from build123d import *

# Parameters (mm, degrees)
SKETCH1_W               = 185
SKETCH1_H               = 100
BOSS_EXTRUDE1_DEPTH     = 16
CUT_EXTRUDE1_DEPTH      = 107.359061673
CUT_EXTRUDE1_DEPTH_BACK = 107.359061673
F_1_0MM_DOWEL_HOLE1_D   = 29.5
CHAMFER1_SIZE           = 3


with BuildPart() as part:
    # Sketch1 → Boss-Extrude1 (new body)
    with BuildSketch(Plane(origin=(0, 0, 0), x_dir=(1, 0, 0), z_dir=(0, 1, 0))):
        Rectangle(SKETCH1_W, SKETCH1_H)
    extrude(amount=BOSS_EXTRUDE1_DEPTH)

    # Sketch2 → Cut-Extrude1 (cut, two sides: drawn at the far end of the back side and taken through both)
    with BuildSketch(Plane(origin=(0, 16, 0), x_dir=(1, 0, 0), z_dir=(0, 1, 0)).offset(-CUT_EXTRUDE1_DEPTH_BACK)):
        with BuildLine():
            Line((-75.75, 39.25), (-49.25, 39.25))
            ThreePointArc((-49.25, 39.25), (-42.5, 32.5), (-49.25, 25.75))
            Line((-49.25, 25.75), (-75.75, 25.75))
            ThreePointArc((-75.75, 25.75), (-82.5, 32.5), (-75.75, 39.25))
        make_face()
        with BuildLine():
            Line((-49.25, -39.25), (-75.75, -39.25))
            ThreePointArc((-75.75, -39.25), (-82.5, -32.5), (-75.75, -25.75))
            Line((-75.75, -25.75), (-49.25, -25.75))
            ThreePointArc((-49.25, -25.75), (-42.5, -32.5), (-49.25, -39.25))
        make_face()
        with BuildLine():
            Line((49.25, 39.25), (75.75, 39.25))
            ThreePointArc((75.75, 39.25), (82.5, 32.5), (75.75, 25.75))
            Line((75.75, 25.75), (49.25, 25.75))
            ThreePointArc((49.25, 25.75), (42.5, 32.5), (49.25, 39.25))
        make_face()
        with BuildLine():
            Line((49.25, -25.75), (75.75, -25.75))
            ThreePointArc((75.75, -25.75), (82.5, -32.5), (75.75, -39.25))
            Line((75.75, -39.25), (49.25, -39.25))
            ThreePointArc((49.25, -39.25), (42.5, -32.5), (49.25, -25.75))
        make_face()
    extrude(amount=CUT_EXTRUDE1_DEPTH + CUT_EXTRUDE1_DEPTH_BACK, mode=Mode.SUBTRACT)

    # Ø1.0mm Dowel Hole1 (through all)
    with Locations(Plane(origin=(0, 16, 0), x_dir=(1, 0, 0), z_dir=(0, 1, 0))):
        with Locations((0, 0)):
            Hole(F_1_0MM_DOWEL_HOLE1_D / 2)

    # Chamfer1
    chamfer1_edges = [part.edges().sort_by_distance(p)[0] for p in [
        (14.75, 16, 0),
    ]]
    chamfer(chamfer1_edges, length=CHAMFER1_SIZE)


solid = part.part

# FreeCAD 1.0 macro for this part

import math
import FreeCAD as App
import Part
import Sketcher


def edges_at(feature, points):
    """Names of the edges that pass closest to the given points."""
    edges = feature.Shape.Edges
    near = lambda p: min(range(len(edges)), key=lambda i: edges[i].distToShape(Part.Vertex(*p))[0])
    return sorted({f"Edge{near(p) + 1}" for p in points})


def add_polygon(sketch, points):
    """Adds a closed chain of lines whose ends are joined by coincident constraints."""
    first, n = sketch.GeometryCount, len(points)
    for a, b in zip(points, points[1:] + points[:1]):
        sketch.addGeometry(Part.LineSegment(App.Vector(*a, 0), App.Vector(*b, 0)), False)
    for i in range(n):
        sketch.addConstraint(Sketcher.Constraint("Coincident", first + i, 2, first + (i + 1) % n, 1))

doc = App.newDocument("Part")
params = doc.addObject("Spreadsheet::Sheet", "Params")
for row, (alias, value) in enumerate([
    ("sketch1_width", "185 mm"),
    ("sketch1_height", "100 mm"),
    ("pad1_length", "16 mm"),
    ("sketch2_radius", "6.75 mm"),
    ("sketch2_width", "26.5 mm"),
    ("sketch3_diameter", "29.5 mm"),
    ("hole_diameter", "29.5 mm"),
    ("chamfer_size", "3 mm"),
], start=1):
    params.set(f"A{row}", alias)
    params.set(f"B{row}", "=" + value)
    params.setAlias(f"B{row}", alias)

body = doc.addObject("PartDesign::Body", "Body")

# Sketch on XZ plane
sketch1 = body.newObject("Sketcher::SketchObject", "Sketch")
sketch1.AttachmentSupport = (doc.getObject("XZ_Plane"), [""])
sketch1.MapMode = "FlatFace"
add_polygon(sketch1, [(-92, -50), (-92, 50), (92, 50), (92, -50)])  # lines 0-3
sketch1.addConstraint(Sketcher.Constraint("Vertical", 0))
sketch1.addConstraint(Sketcher.Constraint("Horizontal", 1))
sketch1.addConstraint(Sketcher.Constraint("Vertical", 2))
sketch1.addConstraint(Sketcher.Constraint("Horizontal", 3))
sketch1.addConstraint(Sketcher.Constraint("Symmetric", 0, 2, 2, 2, -1, 1))
sketch1.addConstraint(Sketcher.Constraint("DistanceX", 1, 1, 1, 2, 185.0))
sketch1.addConstraint(Sketcher.Constraint("DistanceY", 0, 1, 0, 2, 100.0))
sketch1.setExpression("Constraints[9]", "Params.sketch1_width")
sketch1.setExpression("Constraints[10]", "Params.sketch1_height")
pad1 = body.newObject("PartDesign::Pad", "Pad")
pad1.Profile = sketch1
pad1.setExpression("Length", "Params.pad1_length")
pad1.Reversed = True

# Sketch on XZ plane
sketch2 = body.newObject("Sketcher::SketchObject", "Sketch001")
sketch2.AttachmentSupport = (doc.getObject("XZ_Plane"), [""])
sketch2.MapMode = "FlatFace"
sketch2.AttachmentOffset = App.Placement(App.Vector(0, 0, -16), App.Rotation())
sketch2.addGeometry(Part.LineSegment(App.Vector(-49, -39, 0), App.Vector(-76, -39, 0)), False)
sketch2.addGeometry(Part.ArcOfCircle(Part.Circle(App.Vector(-76, -32, 0), App.Vector(0, 0, 1), 7), math.radians(90), math.radians(270)), False)
sketch2.addGeometry(Part.LineSegment(App.Vector(-76, -26, 0), App.Vector(-49, -26, 0)), False)
sketch2.addGeometry(Part.ArcOfCircle(Part.Circle(App.Vector(-49, -32, 0), App.Vector(0, 0, 1), 7), math.radians(-90), math.radians(90)), False)
sketch2.addGeometry(Part.LineSegment(App.Vector(-76, 39, 0), App.Vector(-49, 39, 0)), False)
sketch2.addGeometry(Part.ArcOfCircle(Part.Circle(App.Vector(-49, 32, 0), App.Vector(0, 0, 1), 7), math.radians(-90), math.radians(90)), False)
sketch2.addGeometry(Part.LineSegment(App.Vector(-49, 26, 0), App.Vector(-76, 26, 0)), False)
sketch2.addGeometry(Part.ArcOfCircle(Part.Circle(App.Vector(-76, 32, 0), App.Vector(0, 0, 1), 7), math.radians(90), math.radians(270)), False)
sketch2.addGeometry(Part.LineSegment(App.Vector(76, -39, 0), App.Vector(49, -39, 0)), False)
sketch2.addGeometry(Part.ArcOfCircle(Part.Circle(App.Vector(49, -32, 0), App.Vector(0, 0, 1), 7), math.radians(90), math.radians(270)), False)
sketch2.addGeometry(Part.LineSegment(App.Vector(49, -26, 0), App.Vector(76, -26, 0)), False)
sketch2.addGeometry(Part.ArcOfCircle(Part.Circle(App.Vector(76, -32, 0), App.Vector(0, 0, 1), 7), math.radians(-90), math.radians(90)), False)
sketch2.addGeometry(Part.LineSegment(App.Vector(76, 26, 0), App.Vector(49, 26, 0)), False)
sketch2.addGeometry(Part.ArcOfCircle(Part.Circle(App.Vector(49, 32, 0), App.Vector(0, 0, 1), 7), math.radians(90), math.radians(270)), False)
sketch2.addGeometry(Part.LineSegment(App.Vector(49, 39, 0), App.Vector(76, 39, 0)), False)
sketch2.addGeometry(Part.ArcOfCircle(Part.Circle(App.Vector(76, 32, 0), App.Vector(0, 0, 1), 7), math.radians(-90), math.radians(90)), False)
sketch2.addConstraint(Sketcher.Constraint("Tangent", 0, 2, 1, 2))
sketch2.addConstraint(Sketcher.Constraint("Tangent", 1, 1, 2, 1))
sketch2.addConstraint(Sketcher.Constraint("Tangent", 2, 2, 3, 2))
sketch2.addConstraint(Sketcher.Constraint("Tangent", 3, 1, 0, 1))
sketch2.addConstraint(Sketcher.Constraint("Tangent", 4, 2, 5, 2))
sketch2.addConstraint(Sketcher.Constraint("Tangent", 5, 1, 6, 1))
sketch2.addConstraint(Sketcher.Constraint("Tangent", 6, 2, 7, 2))
sketch2.addConstraint(Sketcher.Constraint("Tangent", 7, 1, 4, 1))
sketch2.addConstraint(Sketcher.Constraint("Tangent", 8, 2, 9, 2))
sketch2.addConstraint(Sketcher.Constraint("Tangent", 9, 1, 10, 1))
sketch2.addConstraint(Sketcher.Constraint("Tangent", 10, 2, 11, 2))
sketch2.addConstraint(Sketcher.Constraint("Tangent", 11, 1, 8, 1))
sketch2.addConstraint(Sketcher.Constraint("Tangent", 12, 2, 13, 2))
sketch2.addConstraint(Sketcher.Constraint("Tangent", 13, 1, 14, 1))
sketch2.addConstraint(Sketcher.Constraint("Tangent", 14, 2, 15, 2))
sketch2.addConstraint(Sketcher.Constraint("Tangent", 15, 1, 12, 1))
sketch2.addConstraint(Sketcher.Constraint("Horizontal", 0))
sketch2.addConstraint(Sketcher.Constraint("Horizontal", 2))
sketch2.addConstraint(Sketcher.Constraint("Horizontal", 4))
sketch2.addConstraint(Sketcher.Constraint("Horizontal", 6))
sketch2.addConstraint(Sketcher.Constraint("Horizontal", 8))
sketch2.addConstraint(Sketcher.Constraint("Horizontal", 10))
sketch2.addConstraint(Sketcher.Constraint("Horizontal", 12))
sketch2.addConstraint(Sketcher.Constraint("Horizontal", 14))
sketch2.addConstraint(Sketcher.Constraint("Equal", 3, 5))
sketch2.addConstraint(Sketcher.Constraint("Equal", 7, 9))
sketch2.addConstraint(Sketcher.Constraint("Equal", 11, 13))
sketch2.addConstraint(Sketcher.Constraint("Symmetric", 5, 3, 9, 3, -1, 1))
sketch2.addConstraint(Sketcher.Constraint("Symmetric", 3, 3, 13, 3, -1, 1))
sketch2.addConstraint(Sketcher.Constraint("Symmetric", 3, 3, 9, 3, -2))
sketch2.addConstraint(Sketcher.Constraint("Vertical", 1, 3, 7, 3))
sketch2.addConstraint(Sketcher.Constraint("Vertical", 11, 3, 15, 3))
sketch2.addConstraint(Sketcher.Constraint("Equal", 6, 8))
sketch2.addConstraint(Sketcher.Constraint("Radius", 1, 6.75))
sketch2.addConstraint(Sketcher.Constraint("DistanceX", 0, 2, 0, 1, 26.5))
sketch2.addConstraint(Sketcher.Constraint("DistanceY", 3, 3, 5, 3, 65.0))
sketch2.addConstraint(Sketcher.Constraint("DistanceX", 1, 3, 9, 3, 125.0))
sketch2.setExpression("Constraints[33]", "Params.sketch2_radius")
sketch2.setExpression("Constraints[34]", "Params.sketch2_width")
pocket1 = body.newObject("PartDesign::Pocket", "Pocket")
pocket1.Profile = sketch2
pocket1.Type = "ThroughAll"
pocket1.Midplane = True

# Sketch on XZ plane
sketch3 = body.newObject("Sketcher::SketchObject", "Sketch002")
sketch3.AttachmentSupport = (doc.getObject("XZ_Plane"), [""])
sketch3.MapMode = "FlatFace"
sketch3.AttachmentOffset = App.Placement(App.Vector(0, 0, -16), App.Rotation())
sketch3.addGeometry(Part.Circle(App.Vector(0, 0, 0), App.Vector(0, 0, 1), 15), False)
sketch3.addConstraint(Sketcher.Constraint("Coincident", 0, 3, -1, 1))
sketch3.addConstraint(Sketcher.Constraint("Diameter", 0, 29.5))
sketch3.setExpression("Constraints[1]", "Params.sketch3_diameter")
doc.recompute()
hole = body.newObject("PartDesign::Hole", "Hole")
hole.Profile = sketch3
hole.ThreadType = "None"
hole.setExpression("Diameter", "Params.hole_diameter")
hole.DepthType = "ThroughAll"
hole.Reversed = True
doc.recompute()

chamfer = body.newObject("PartDesign::Chamfer", "Chamfer")
chamfer.Base = (hole, edges_at(hole, [(14.75, 16, 0)]))
chamfer.setExpression("Size", "Params.chamfer_size")

doc.recompute()
